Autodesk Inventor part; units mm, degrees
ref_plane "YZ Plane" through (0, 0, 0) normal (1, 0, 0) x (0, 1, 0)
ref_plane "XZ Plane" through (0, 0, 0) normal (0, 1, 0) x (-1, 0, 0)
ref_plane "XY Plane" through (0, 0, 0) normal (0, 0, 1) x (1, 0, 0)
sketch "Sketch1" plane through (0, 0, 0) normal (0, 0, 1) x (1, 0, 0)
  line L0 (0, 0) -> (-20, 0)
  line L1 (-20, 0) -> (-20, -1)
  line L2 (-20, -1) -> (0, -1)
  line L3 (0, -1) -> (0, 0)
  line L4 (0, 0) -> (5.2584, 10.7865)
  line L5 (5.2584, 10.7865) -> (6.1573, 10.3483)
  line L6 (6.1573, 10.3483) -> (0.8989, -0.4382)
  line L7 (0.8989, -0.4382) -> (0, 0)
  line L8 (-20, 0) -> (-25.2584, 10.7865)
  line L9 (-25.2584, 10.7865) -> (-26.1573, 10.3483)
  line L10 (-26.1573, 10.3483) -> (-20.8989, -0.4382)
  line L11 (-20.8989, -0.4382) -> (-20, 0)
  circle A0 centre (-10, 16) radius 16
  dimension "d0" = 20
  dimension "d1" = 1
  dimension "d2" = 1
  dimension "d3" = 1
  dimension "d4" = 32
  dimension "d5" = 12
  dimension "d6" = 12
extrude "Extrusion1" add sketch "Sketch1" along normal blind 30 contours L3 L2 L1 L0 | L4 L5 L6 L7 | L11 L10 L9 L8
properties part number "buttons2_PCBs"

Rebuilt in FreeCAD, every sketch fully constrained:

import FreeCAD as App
import Part
import Sketcher

V = App.Vector
Q = App.Units.Quantity

doc = App.newDocument("Part")
body = doc.addObject("PartDesign::Body", "Body")
body.AllowCompound = True

# Sketch on XY plane
sketch1 = body.newObject("Sketcher::SketchObject", "Sketch")
sketch1.AttachmentSupport = (doc.getObject("XY_Plane"), [""])
sketch1.MapMode = "FlatFace"
sketch1.addGeometry(Part.LineSegment(V(0, -1, 0), V(0, 0, 0)), False)
sketch1.addGeometry(Part.LineSegment(V(0, 0, 0), V(-20, 0, 0)), False)
sketch1.addGeometry(Part.LineSegment(V(-20, 0, 0), V(-20, -1, 0)), False)
sketch1.addGeometry(Part.LineSegment(V(-20, -1, 0), V(0, -1, 0)), False)
sketch1.addGeometry(Part.LineSegment(V(5.2584, 10.7865, 0), V(0, 0, 0)), False)
sketch1.addGeometry(Part.LineSegment(V(0, 0, 0), V(0.8989, -0.4382, 0)), False)
sketch1.addGeometry(Part.LineSegment(V(0.8989, -0.4382, 0), V(6.1573, 10.3483, 0)), False)
sketch1.addGeometry(Part.LineSegment(V(6.1573, 10.3483, 0), V(5.2584, 10.7865, 0)), False)
sketch1.addGeometry(Part.LineSegment(V(-20.8989, -0.4382, 0), V(-20, 0, 0)), False)
sketch1.addGeometry(Part.LineSegment(V(-20, 0, 0), V(-25.2584, 10.7865, 0)), False)
sketch1.addGeometry(Part.LineSegment(V(-25.2584, 10.7865, 0), V(-26.1573, 10.3483, 0)), False)
sketch1.addGeometry(Part.LineSegment(V(-26.1573, 10.3483, 0), V(-20.8989, -0.4382, 0)), False)
sketch1.addConstraint(Sketcher.Constraint("Coincident", 0, 2, 1, 1))
sketch1.addConstraint(Sketcher.Constraint("Coincident", 1, 2, 2, 1))
sketch1.addConstraint(Sketcher.Constraint("Coincident", 2, 2, 3, 1))
sketch1.addConstraint(Sketcher.Constraint("Coincident", 3, 2, 0, 1))
sketch1.addConstraint(Sketcher.Constraint("Coincident", 4, 2, 5, 1))
sketch1.addConstraint(Sketcher.Constraint("Coincident", 5, 2, 6, 1))
sketch1.addConstraint(Sketcher.Constraint("Coincident", 6, 2, 7, 1))
sketch1.addConstraint(Sketcher.Constraint("Coincident", 7, 2, 4, 1))
sketch1.addConstraint(Sketcher.Constraint("Coincident", 8, 2, 9, 1))
sketch1.addConstraint(Sketcher.Constraint("Coincident", 9, 2, 10, 1))
sketch1.addConstraint(Sketcher.Constraint("Coincident", 10, 2, 11, 1))
sketch1.addConstraint(Sketcher.Constraint("Coincident", 11, 2, 8, 1))
sketch1.addConstraint(Sketcher.Constraint("Vertical", 0))
sketch1.addConstraint(Sketcher.Constraint("Horizontal", 1))
sketch1.addConstraint(Sketcher.Constraint("Vertical", 2))
sketch1.addConstraint(Sketcher.Constraint("Horizontal", 3))
sketch1.addConstraint(Sketcher.Constraint("Coincident", 0, 2, -1, 1))
sketch1.addConstraint(Sketcher.Constraint("Coincident", 4, 2, -1, 1))
sketch1.addConstraint(Sketcher.Constraint("Coincident", 8, 2, 1, 2))
sketch1.addConstraint(Sketcher.Constraint("Perpendicular", 4, 5))
sketch1.addConstraint(Sketcher.Constraint("Perpendicular", 5, 6))
sketch1.addConstraint(Sketcher.Constraint("Perpendicular", 6, 7))
sketch1.addConstraint(Sketcher.Constraint("Perpendicular", 8, 9))
sketch1.addConstraint(Sketcher.Constraint("Perpendicular", 9, 10))
sketch1.addConstraint(Sketcher.Constraint("Perpendicular", 10, 11))
sketch1.addConstraint(Sketcher.Constraint("Horizontal", 7, 2, 9, 2))
sketch1.addConstraint(Sketcher.Constraint("Horizontal", 6, 2, 10, 2))
sketch1.addConstraint(Sketcher.Constraint("Equal", 7, 8))
sketch1.addConstraint(Sketcher.Constraint("DistanceX", 1, 2, 1, 1, 20.0))
sketch1.addConstraint(Sketcher.Constraint("DistanceY", 0, 1, 0, 2, 1.0))
sketch1.addConstraint(Sketcher.Constraint("Distance", 4, 12.0))
sketch1.addConstraint(Sketcher.Constraint("Distance", 5, 1.0))
sketch1.addConstraint(Sketcher.Constraint("Angle", 4, Q("-115.9892 deg")))
pad1 = body.newObject("PartDesign::Pad", "Pad")
pad1.Profile = sketch1
pad1.Length = 30

doc.recompute()
